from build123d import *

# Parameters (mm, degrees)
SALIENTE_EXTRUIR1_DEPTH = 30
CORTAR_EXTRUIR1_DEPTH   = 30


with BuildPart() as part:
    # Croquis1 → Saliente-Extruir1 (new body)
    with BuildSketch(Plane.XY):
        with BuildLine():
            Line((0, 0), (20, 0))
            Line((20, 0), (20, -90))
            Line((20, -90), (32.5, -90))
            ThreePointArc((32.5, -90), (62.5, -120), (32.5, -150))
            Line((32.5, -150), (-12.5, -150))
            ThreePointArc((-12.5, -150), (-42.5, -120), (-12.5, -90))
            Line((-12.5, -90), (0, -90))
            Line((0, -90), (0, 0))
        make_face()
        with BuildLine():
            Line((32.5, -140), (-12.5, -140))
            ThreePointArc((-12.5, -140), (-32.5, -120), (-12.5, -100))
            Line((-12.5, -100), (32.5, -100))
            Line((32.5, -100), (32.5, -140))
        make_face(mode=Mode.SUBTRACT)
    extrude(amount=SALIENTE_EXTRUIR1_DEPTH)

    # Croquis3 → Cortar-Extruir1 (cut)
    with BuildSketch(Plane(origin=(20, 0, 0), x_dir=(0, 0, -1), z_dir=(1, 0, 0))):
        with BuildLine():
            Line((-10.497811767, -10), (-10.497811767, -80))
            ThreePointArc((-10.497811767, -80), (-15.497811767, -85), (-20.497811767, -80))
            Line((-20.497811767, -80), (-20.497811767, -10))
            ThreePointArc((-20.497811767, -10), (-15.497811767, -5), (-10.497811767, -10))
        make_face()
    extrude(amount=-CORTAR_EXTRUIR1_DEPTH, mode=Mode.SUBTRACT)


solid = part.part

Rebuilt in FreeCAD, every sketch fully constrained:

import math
import FreeCAD as App
import Part
import Sketcher

V = App.Vector
Q = App.Units.Quantity

doc = App.newDocument("Part")
params = doc.addObject("Spreadsheet::Sheet", "Params")
for row, (alias, value) in enumerate([
    ("sketch1_radius", "30 mm"),
    ("sketch1_radius2", "20 mm"),
    ("sketch1_width", "20 mm"),
    ("sketch1_width2", "45 mm"),
    ("sketch1_height", "90 mm"),
    ("pad1_length", "30 mm"),
    ("sketch2_radius", "5 mm"),
    ("sketch2_width", "70 mm"),
    ("pocket1_length", "30 mm"),
], start=1):
    params.set(f"A{row}", alias)
    params.set(f"B{row}", "=" + value)
    params.setAlias(f"B{row}", alias)

body = doc.addObject("PartDesign::Body", "Body")

# Sketch on XY plane
sketch1 = body.newObject("Sketcher::SketchObject", "Sketch")
sketch1.AttachmentSupport = (doc.getObject("XY_Plane"), [""])
sketch1.MapMode = "FlatFace"
sketch1.addGeometry([
    Part.LineSegment(V(20, 0, 0), V(0, 0, 0)),  # 0
    Part.LineSegment(V(0, 0, 0), V(0, -90, 0)),  # 1
    Part.LineSegment(V(0, -90, 0), V(-12, -90, 0)),  # 2
    Part.ArcOfCircle(Part.Circle(V(-12, -120, 0), V(0, 0, 1), 30), math.radians(90), math.radians(270)),  # 3
    Part.LineSegment(V(-12, -150, 0), V(32, -150, 0)),  # 4
    Part.ArcOfCircle(Part.Circle(V(32, -120, 0), V(0, 0, 1), 30), math.radians(-90), math.radians(90)),  # 5
    Part.LineSegment(V(32, -90, 0), V(20, -90, 0)),  # 6
    Part.LineSegment(V(20, -90, 0), V(20, 0, 0)),  # 7
    Part.LineSegment(V(32, -140, 0), V(-12, -140, 0)),  # 8
    Part.ArcOfCircle(Part.Circle(V(-12, -120, 0), V(0, 0, 1), 20), math.radians(90), math.radians(270)),  # 9
    Part.LineSegment(V(-12, -100, 0), V(32, -100, 0)),  # 10
    Part.LineSegment(V(32, -100, 0), V(32, -140, 0)),  # 11
], False)
sketch1.addConstraint([
    Sketcher.Constraint("Coincident", 0, 2, 1, 1),
    Sketcher.Constraint("Coincident", 1, 2, 2, 1),
    Sketcher.Constraint("Tangent", 2, 2, 3, 1),
    Sketcher.Constraint("Tangent", 3, 2, 4, 1),
    Sketcher.Constraint("Tangent", 4, 2, 5, 1),
    Sketcher.Constraint("Tangent", 5, 2, 6, 1),
    Sketcher.Constraint("Coincident", 6, 2, 7, 1),
    Sketcher.Constraint("Coincident", 7, 2, 0, 1),
    Sketcher.Constraint("Tangent", 8, 2, 9, 2),
    Sketcher.Constraint("Tangent", 9, 1, 10, 1),
    Sketcher.Constraint("Coincident", 10, 2, 11, 1),
    Sketcher.Constraint("Coincident", 11, 2, 8, 1),
    Sketcher.Constraint("Horizontal", 0),
    Sketcher.Constraint("Vertical", 1),
    Sketcher.Constraint("Horizontal", 2),
    Sketcher.Constraint("Horizontal", 4),
    Sketcher.Constraint("Horizontal", 6),
    Sketcher.Constraint("Vertical", 7),
    Sketcher.Constraint("Horizontal", 8),
    Sketcher.Constraint("Horizontal", 10),
    Sketcher.Constraint("Vertical", 11),
    Sketcher.Constraint("Coincident", 0, 2, -1, 1),
    Sketcher.Constraint("Coincident", 9, 3, 3, 3),
    Sketcher.Constraint("Equal", 3, 5),
    Sketcher.Constraint("Vertical", 5, 2, 10, 2),
    Sketcher.Constraint("Equal", 2, 6),
    Sketcher.Constraint("Radius", 3, Q("30 mm")),
    Sketcher.Constraint("Radius", 9, Q("20 mm")),
    Sketcher.Constraint("DistanceX", 0, 2, 0, 1, Q("20 mm")),
    Sketcher.Constraint("DistanceX", 4, 1, 4, 2, Q("45 mm")),
    Sketcher.Constraint("DistanceY", 1, 2, 1, 1, Q("90 mm")),
])
sketch1.setExpression("Constraints[26]", "Params.sketch1_radius")
sketch1.setExpression("Constraints[27]", "Params.sketch1_radius2")
sketch1.setExpression("Constraints[28]", "Params.sketch1_width")
sketch1.setExpression("Constraints[29]", "Params.sketch1_width2")
sketch1.setExpression("Constraints[30]", "Params.sketch1_height")
pad1 = body.newObject("PartDesign::Pad", "Pad")
pad1.Profile = sketch1
pad1.setExpression("Length", "Params.pad1_length")

# Sketch on YZ plane
sketch2 = body.newObject("Sketcher::SketchObject", "Sketch001")
sketch2.AttachmentSupport = (doc.getObject("YZ_Plane"), [""])
sketch2.MapMode = "FlatFace"
sketch2.AttachmentOffset = App.Placement(V(0, 0, 20), App.Rotation())
sketch2.addGeometry([
    Part.LineSegment(V(-80, 10, 0), V(-10, 10, 0)),
    Part.ArcOfCircle(Part.Circle(V(-10, 15, 0), V(0, 0, 1), 5), math.radians(-90), math.radians(90)),
    Part.LineSegment(V(-10, 20, 0), V(-80, 20, 0)),
    Part.ArcOfCircle(Part.Circle(V(-80, 15, 0), V(0, 0, 1), 5), math.radians(90), math.radians(270)),
], False)
sketch2.addConstraint([
    Sketcher.Constraint("Tangent", 0, 2, 1, 1),
    Sketcher.Constraint("Tangent", 1, 2, 2, 1),
    Sketcher.Constraint("Tangent", 2, 2, 3, 1),
    Sketcher.Constraint("Tangent", 3, 2, 0, 1),
    Sketcher.Constraint("Horizontal", 0),
    Sketcher.Constraint("Horizontal", 2),
    Sketcher.Constraint("Radius", 1, Q("5 mm")),
    Sketcher.Constraint("DistanceX", 0, 1, 0, 2, Q("70 mm")),
    Sketcher.Constraint("DistanceX", 1, 3, -1, 1, Q("10 mm")),
    Sketcher.Constraint("DistanceY", -1, 1, 1, 3, Q("15.497812 mm")),
])
sketch2.setExpression("Constraints[6]", "Params.sketch2_radius")
sketch2.setExpression("Constraints[7]", "Params.sketch2_width")
pocket1 = body.newObject("PartDesign::Pocket", "Pocket")
pocket1.Profile = sketch2
pocket1.setExpression("Length", "Params.pocket1_length")

doc.recompute()
